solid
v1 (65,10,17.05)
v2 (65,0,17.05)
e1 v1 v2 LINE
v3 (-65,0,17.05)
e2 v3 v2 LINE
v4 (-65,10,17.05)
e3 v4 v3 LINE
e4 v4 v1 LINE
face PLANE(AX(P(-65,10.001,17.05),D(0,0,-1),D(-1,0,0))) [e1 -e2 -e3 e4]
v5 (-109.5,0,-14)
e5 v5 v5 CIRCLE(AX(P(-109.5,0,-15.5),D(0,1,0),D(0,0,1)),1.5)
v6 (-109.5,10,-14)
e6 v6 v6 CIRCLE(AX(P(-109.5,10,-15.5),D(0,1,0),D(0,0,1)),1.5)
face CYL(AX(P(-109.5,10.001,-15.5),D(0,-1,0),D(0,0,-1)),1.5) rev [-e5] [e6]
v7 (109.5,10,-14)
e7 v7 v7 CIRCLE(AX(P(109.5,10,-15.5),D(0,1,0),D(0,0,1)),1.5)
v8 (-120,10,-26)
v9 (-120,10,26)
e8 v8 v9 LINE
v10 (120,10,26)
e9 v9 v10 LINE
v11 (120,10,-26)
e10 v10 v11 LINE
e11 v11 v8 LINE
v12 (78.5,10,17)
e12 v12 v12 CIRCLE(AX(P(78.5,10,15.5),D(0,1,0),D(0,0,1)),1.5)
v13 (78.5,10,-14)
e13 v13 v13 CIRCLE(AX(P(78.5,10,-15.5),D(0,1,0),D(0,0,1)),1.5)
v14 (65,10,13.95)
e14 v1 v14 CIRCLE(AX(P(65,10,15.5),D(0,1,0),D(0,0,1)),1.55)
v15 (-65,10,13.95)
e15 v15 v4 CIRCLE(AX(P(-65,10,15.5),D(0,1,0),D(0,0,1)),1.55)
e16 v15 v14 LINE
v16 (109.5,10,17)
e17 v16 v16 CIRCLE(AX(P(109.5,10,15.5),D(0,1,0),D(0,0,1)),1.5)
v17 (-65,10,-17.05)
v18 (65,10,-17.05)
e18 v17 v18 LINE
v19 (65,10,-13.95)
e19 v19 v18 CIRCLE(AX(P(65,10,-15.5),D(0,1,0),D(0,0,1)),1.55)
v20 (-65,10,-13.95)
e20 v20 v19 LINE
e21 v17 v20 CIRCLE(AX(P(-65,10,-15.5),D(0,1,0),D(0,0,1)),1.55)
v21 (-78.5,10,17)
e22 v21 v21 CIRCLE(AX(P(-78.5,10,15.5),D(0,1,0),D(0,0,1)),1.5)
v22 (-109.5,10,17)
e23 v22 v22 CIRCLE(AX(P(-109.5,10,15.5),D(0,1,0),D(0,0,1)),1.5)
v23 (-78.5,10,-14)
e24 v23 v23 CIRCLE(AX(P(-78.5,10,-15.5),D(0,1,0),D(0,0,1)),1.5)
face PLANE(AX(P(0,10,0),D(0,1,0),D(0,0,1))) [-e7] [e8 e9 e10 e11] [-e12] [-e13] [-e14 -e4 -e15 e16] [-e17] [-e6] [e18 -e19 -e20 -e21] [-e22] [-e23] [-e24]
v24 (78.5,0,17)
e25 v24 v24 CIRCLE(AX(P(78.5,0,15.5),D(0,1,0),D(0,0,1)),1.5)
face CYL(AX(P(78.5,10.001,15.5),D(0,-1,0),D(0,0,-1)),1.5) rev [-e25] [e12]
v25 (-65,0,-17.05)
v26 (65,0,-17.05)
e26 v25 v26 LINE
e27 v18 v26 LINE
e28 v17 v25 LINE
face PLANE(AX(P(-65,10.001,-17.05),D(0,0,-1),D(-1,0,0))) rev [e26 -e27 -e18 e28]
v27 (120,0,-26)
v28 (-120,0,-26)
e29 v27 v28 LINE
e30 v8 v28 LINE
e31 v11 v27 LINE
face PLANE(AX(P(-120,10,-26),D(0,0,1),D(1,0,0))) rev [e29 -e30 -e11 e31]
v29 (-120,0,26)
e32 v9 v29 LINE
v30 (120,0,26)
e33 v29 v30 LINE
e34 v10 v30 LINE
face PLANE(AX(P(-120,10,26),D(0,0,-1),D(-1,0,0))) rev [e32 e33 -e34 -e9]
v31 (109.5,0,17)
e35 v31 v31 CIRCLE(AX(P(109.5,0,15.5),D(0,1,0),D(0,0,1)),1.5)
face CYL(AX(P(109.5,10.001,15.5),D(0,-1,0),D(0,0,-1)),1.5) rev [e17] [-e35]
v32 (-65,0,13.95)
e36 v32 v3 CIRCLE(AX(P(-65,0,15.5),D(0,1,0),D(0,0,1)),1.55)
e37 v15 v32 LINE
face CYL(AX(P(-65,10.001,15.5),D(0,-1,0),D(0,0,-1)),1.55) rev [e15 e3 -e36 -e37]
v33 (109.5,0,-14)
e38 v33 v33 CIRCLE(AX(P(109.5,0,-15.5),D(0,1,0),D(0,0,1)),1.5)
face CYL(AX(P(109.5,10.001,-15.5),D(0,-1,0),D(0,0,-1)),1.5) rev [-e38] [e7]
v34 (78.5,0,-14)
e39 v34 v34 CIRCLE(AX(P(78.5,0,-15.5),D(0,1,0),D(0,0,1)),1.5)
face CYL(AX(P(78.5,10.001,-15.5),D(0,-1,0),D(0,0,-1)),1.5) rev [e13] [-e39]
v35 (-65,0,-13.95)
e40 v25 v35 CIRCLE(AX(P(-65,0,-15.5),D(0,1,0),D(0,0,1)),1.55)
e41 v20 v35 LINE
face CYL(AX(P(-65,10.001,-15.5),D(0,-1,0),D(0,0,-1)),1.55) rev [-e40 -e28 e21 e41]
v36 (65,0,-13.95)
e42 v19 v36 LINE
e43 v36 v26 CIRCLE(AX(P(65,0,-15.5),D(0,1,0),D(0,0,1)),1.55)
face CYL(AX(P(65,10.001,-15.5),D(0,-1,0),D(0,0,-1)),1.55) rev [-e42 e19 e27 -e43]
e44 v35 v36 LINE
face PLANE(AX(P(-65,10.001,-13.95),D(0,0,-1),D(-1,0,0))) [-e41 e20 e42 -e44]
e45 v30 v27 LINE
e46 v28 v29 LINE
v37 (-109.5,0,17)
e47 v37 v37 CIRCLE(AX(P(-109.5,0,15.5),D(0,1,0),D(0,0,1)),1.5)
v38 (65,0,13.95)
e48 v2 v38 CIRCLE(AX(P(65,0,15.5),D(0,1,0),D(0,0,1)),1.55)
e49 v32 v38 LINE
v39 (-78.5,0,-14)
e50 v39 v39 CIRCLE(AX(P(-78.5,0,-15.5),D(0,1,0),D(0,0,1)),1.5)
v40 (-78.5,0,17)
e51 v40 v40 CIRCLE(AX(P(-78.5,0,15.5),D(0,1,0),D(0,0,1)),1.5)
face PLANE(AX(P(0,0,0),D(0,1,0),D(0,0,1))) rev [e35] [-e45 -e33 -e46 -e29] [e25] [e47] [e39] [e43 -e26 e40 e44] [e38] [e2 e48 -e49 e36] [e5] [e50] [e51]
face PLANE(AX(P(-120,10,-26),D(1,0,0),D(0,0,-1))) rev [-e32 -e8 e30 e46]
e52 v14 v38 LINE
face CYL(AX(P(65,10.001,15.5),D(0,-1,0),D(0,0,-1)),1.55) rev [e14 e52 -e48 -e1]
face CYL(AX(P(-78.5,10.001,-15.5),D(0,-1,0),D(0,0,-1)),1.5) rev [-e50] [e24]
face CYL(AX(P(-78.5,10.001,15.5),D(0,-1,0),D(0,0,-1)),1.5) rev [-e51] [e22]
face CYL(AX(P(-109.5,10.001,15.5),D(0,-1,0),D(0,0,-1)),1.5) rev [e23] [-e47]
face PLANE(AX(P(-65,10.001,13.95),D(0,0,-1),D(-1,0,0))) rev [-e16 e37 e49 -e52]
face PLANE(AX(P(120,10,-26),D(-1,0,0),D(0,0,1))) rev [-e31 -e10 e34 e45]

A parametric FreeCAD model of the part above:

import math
import FreeCAD as App
import Part
import Sketcher
Q = App.Units.Quantity

doc = App.newDocument("Part")
body = doc.addObject("PartDesign::Body", "Body")

sketch1 = body.newObject("Sketcher::SketchObject", "Sketch")
sketch1.AttachmentSupport = (doc.getObject("XZ_Plane"), [""])
sketch1.MapMode = "FlatFace"
sketch1.addGeometry(Part.LineSegment(App.Vector(-120, -26, 0), App.Vector(-120, 26, 0)), False)
sketch1.addGeometry(Part.LineSegment(App.Vector(-120, 26, 0), App.Vector(120, 26, 0)), False)
sketch1.addGeometry(Part.LineSegment(App.Vector(120, 26, 0), App.Vector(120, -26, 0)), False)
sketch1.addGeometry(Part.LineSegment(App.Vector(120, -26, 0), App.Vector(-120, -26, 0)), False)
sketch1.addConstraint(Sketcher.Constraint("Coincident", 0, 2, 1, 1))
sketch1.addConstraint(Sketcher.Constraint("Coincident", 1, 2, 2, 1))
sketch1.addConstraint(Sketcher.Constraint("Coincident", 2, 2, 3, 1))
sketch1.addConstraint(Sketcher.Constraint("Coincident", 3, 2, 0, 1))
sketch1.addConstraint(Sketcher.Constraint("Vertical", 0))
sketch1.addConstraint(Sketcher.Constraint("Horizontal", 1))
sketch1.addConstraint(Sketcher.Constraint("Vertical", 2))
sketch1.addConstraint(Sketcher.Constraint("Horizontal", 3))
sketch1.addConstraint(Sketcher.Constraint("Symmetric", 0, 2, 2, 2, -1, 1))
sketch1.addConstraint(Sketcher.Constraint("DistanceX", 1, 1, 1, 2, Q("240 mm")))
sketch1.addConstraint(Sketcher.Constraint("DistanceY", 0, 1, 0, 2, Q("52 mm")))
pad1 = body.newObject("PartDesign::Pad", "Pad")
pad1.Profile = sketch1
pad1.Length = 10
pad1.Reversed = True

sketch2 = body.newObject("Sketcher::SketchObject", "Sketch001")
sketch2.AttachmentSupport = (doc.getObject("XZ_Plane"), [""])
sketch2.MapMode = "FlatFace"
sketch2.addGeometry(Part.Circle(App.Vector(-109.5, -15.5, 0), App.Vector(0, 0, 1), 1.5), False)
sketch2.addConstraint(Sketcher.Constraint("Diameter", 0, Q("3 mm")))
sketch2.addConstraint(Sketcher.Constraint("DistanceX", 0, 3, -1, 1, Q("109.5 mm")))
sketch2.addConstraint(Sketcher.Constraint("DistanceY", 0, 3, -1, 1, Q("15.5 mm")))
pocket1 = body.newObject("PartDesign::Pocket", "Pocket")
pocket1.Profile = sketch2
pocket1.Type = "UpToFirst"

sketch3 = body.newObject("Sketcher::SketchObject", "Sketch002")
sketch3.AttachmentSupport = (doc.getObject("XZ_Plane"), [""])
sketch3.MapMode = "FlatFace"
sketch3.addGeometry(Part.Circle(App.Vector(-78.5, -15.5, 0), App.Vector(0, 0, 1), 1.5), False)
sketch3.addConstraint(Sketcher.Constraint("Diameter", 0, Q("3 mm")))
sketch3.addConstraint(Sketcher.Constraint("DistanceX", 0, 3, -1, 1, Q("78.5 mm")))
sketch3.addConstraint(Sketcher.Constraint("DistanceY", 0, 3, -1, 1, Q("15.5 mm")))
pocket2 = body.newObject("PartDesign::Pocket", "Pocket001")
pocket2.Profile = sketch3
pocket2.Type = "UpToFirst"

sketch4 = body.newObject("Sketcher::SketchObject", "Sketch003")
sketch4.AttachmentSupport = (doc.getObject("XZ_Plane"), [""])
sketch4.MapMode = "FlatFace"
sketch4.addGeometry(Part.Circle(App.Vector(-109.5, 15.5, 0), App.Vector(0, 0, 1), 1.5), False)
sketch4.addConstraint(Sketcher.Constraint("Diameter", 0, Q("3 mm")))
sketch4.addConstraint(Sketcher.Constraint("DistanceX", 0, 3, -1, 1, Q("109.5 mm")))
sketch4.addConstraint(Sketcher.Constraint("DistanceY", -1, 1, 0, 3, Q("15.5 mm")))
pocket3 = body.newObject("PartDesign::Pocket", "Pocket002")
pocket3.Profile = sketch4
pocket3.Type = "UpToFirst"

sketch5 = body.newObject("Sketcher::SketchObject", "Sketch004")
sketch5.AttachmentSupport = (doc.getObject("XZ_Plane"), [""])
sketch5.MapMode = "FlatFace"
sketch5.addGeometry(Part.Circle(App.Vector(-78.5, 15.5, 0), App.Vector(0, 0, 1), 1.5), False)
sketch5.addConstraint(Sketcher.Constraint("Diameter", 0, Q("3 mm")))
sketch5.addConstraint(Sketcher.Constraint("DistanceX", 0, 3, -1, 1, Q("78.5 mm")))
sketch5.addConstraint(Sketcher.Constraint("DistanceY", -1, 1, 0, 3, Q("15.5 mm")))
pocket4 = body.newObject("PartDesign::Pocket", "Pocket003")
pocket4.Profile = sketch5
pocket4.Type = "UpToFirst"

sketch6 = body.newObject("Sketcher::SketchObject", "Sketch005")
sketch6.AttachmentSupport = (doc.getObject("XZ_Plane"), [""])
sketch6.MapMode = "FlatFace"
sketch6.addGeometry(Part.Circle(App.Vector(78.5, -15.5, 0), App.Vector(0, 0, 1), 1.5), False)
sketch6.addConstraint(Sketcher.Constraint("Diameter", 0, Q("3 mm")))
sketch6.addConstraint(Sketcher.Constraint("DistanceX", -1, 1, 0, 3, Q("78.5 mm")))
sketch6.addConstraint(Sketcher.Constraint("DistanceY", 0, 3, -1, 1, Q("15.5 mm")))
pocket5 = body.newObject("PartDesign::Pocket", "Pocket004")
pocket5.Profile = sketch6
pocket5.Type = "UpToFirst"

sketch7 = body.newObject("Sketcher::SketchObject", "Sketch006")
sketch7.AttachmentSupport = (doc.getObject("XZ_Plane"), [""])
sketch7.MapMode = "FlatFace"
sketch7.addGeometry(Part.Circle(App.Vector(109.5, -15.5, 0), App.Vector(0, 0, 1), 1.5), False)
sketch7.addConstraint(Sketcher.Constraint("Diameter", 0, Q("3 mm")))
sketch7.addConstraint(Sketcher.Constraint("DistanceX", -1, 1, 0, 3, Q("109.5 mm")))
sketch7.addConstraint(Sketcher.Constraint("DistanceY", 0, 3, -1, 1, Q("15.5 mm")))
pocket6 = body.newObject("PartDesign::Pocket", "Pocket005")
pocket6.Profile = sketch7
pocket6.Type = "UpToFirst"

sketch8 = body.newObject("Sketcher::SketchObject", "Sketch007")
sketch8.AttachmentSupport = (doc.getObject("XZ_Plane"), [""])
sketch8.MapMode = "FlatFace"
sketch8.addGeometry(Part.Circle(App.Vector(109.5, 15.5, 0), App.Vector(0, 0, 1), 1.5), False)
sketch8.addConstraint(Sketcher.Constraint("Diameter", 0, Q("3 mm")))
sketch8.addConstraint(Sketcher.Constraint("DistanceX", -1, 1, 0, 3, Q("109.5 mm")))
sketch8.addConstraint(Sketcher.Constraint("DistanceY", -1, 1, 0, 3, Q("15.5 mm")))
pocket7 = body.newObject("PartDesign::Pocket", "Pocket006")
pocket7.Profile = sketch8
pocket7.Type = "UpToFirst"

sketch9 = body.newObject("Sketcher::SketchObject", "Sketch008")
sketch9.AttachmentSupport = (doc.getObject("XZ_Plane"), [""])
sketch9.MapMode = "FlatFace"
sketch9.addGeometry(Part.Circle(App.Vector(78.5, 15.5, 0), App.Vector(0, 0, 1), 1.5), False)
sketch9.addConstraint(Sketcher.Constraint("Diameter", 0, Q("3 mm")))
sketch9.addConstraint(Sketcher.Constraint("DistanceX", -1, 1, 0, 3, Q("78.5 mm")))
sketch9.addConstraint(Sketcher.Constraint("DistanceY", -1, 1, 0, 3, Q("15.5 mm")))
pocket8 = body.newObject("PartDesign::Pocket", "Pocket007")
pocket8.Profile = sketch9
pocket8.Type = "UpToFirst"

sketch10 = body.newObject("Sketcher::SketchObject", "Sketch009")
sketch10.AttachmentSupport = (doc.getObject("XZ_Plane"), [""])
sketch10.MapMode = "FlatFace"
sketch10.addGeometry(Part.LineSegment(App.Vector(65, -17.1, 0), App.Vector(-65, -17.1, 0)), False)
sketch10.addGeometry(Part.ArcOfCircle(Part.Circle(App.Vector(-65, -15.5, 0), App.Vector(0, 0, 1), 1.6), math.radians(90), math.radians(270)), False)
sketch10.addGeometry(Part.LineSegment(App.Vector(-65, -13.9, 0), App.Vector(65, -13.9, 0)), False)
sketch10.addGeometry(Part.ArcOfCircle(Part.Circle(App.Vector(65, -15.5, 0), App.Vector(0, 0, 1), 1.6), math.radians(-90), math.radians(90)), False)
sketch10.addConstraint(Sketcher.Constraint("Tangent", 0, 2, 1, 2))
sketch10.addConstraint(Sketcher.Constraint("Tangent", 1, 1, 2, 1))
sketch10.addConstraint(Sketcher.Constraint("Tangent", 2, 2, 3, 2))
sketch10.addConstraint(Sketcher.Constraint("Tangent", 3, 1, 0, 1))
sketch10.addConstraint(Sketcher.Constraint("Horizontal", 0))
sketch10.addConstraint(Sketcher.Constraint("Horizontal", 2))
sketch10.addConstraint(Sketcher.Constraint("DistanceX", 0, 2, 0, 1, Q("130 mm")))
sketch10.addConstraint(Sketcher.Constraint("Radius", 1, Q("1.55 mm")))
sketch10.addConstraint(Sketcher.Constraint("DistanceX", 1, 3, -1, 1, Q("65 mm")))
sketch10.addConstraint(Sketcher.Constraint("DistanceY", 1, 3, -1, 1, Q("15.5 mm")))
pocket9 = body.newObject("PartDesign::Pocket", "Pocket008")
pocket9.Profile = sketch10
pocket9.Type = "UpToFirst"

sketch11 = body.newObject("Sketcher::SketchObject", "Sketch010")
sketch11.AttachmentSupport = (doc.getObject("XZ_Plane"), [""])
sketch11.MapMode = "FlatFace"
sketch11.addGeometry(Part.LineSegment(App.Vector(65, 13.9, 0), App.Vector(-65, 13.9, 0)), False)
sketch11.addGeometry(Part.ArcOfCircle(Part.Circle(App.Vector(-65, 15.5, 0), App.Vector(0, 0, 1), 1.6), math.radians(90), math.radians(270)), False)
sketch11.addGeometry(Part.LineSegment(App.Vector(-65, 17.1, 0), App.Vector(65, 17.1, 0)), False)
sketch11.addGeometry(Part.ArcOfCircle(Part.Circle(App.Vector(65, 15.5, 0), App.Vector(0, 0, 1), 1.6), math.radians(-90), math.radians(90)), False)
sketch11.addConstraint(Sketcher.Constraint("Tangent", 0, 2, 1, 2))
sketch11.addConstraint(Sketcher.Constraint("Tangent", 1, 1, 2, 1))
sketch11.addConstraint(Sketcher.Constraint("Tangent", 2, 2, 3, 2))
sketch11.addConstraint(Sketcher.Constraint("Tangent", 3, 1, 0, 1))
sketch11.addConstraint(Sketcher.Constraint("Horizontal", 0))
sketch11.addConstraint(Sketcher.Constraint("Horizontal", 2))
sketch11.addConstraint(Sketcher.Constraint("DistanceX", 0, 2, 0, 1, Q("130 mm")))
sketch11.addConstraint(Sketcher.Constraint("Radius", 1, Q("1.55 mm")))
sketch11.addConstraint(Sketcher.Constraint("DistanceX", 1, 3, -1, 1, Q("65 mm")))
sketch11.addConstraint(Sketcher.Constraint("DistanceY", -1, 1, 1, 3, Q("15.5 mm")))
pocket10 = body.newObject("PartDesign::Pocket", "Pocket009")
pocket10.Profile = sketch11
pocket10.Type = "UpToFirst"

doc.recompute()
